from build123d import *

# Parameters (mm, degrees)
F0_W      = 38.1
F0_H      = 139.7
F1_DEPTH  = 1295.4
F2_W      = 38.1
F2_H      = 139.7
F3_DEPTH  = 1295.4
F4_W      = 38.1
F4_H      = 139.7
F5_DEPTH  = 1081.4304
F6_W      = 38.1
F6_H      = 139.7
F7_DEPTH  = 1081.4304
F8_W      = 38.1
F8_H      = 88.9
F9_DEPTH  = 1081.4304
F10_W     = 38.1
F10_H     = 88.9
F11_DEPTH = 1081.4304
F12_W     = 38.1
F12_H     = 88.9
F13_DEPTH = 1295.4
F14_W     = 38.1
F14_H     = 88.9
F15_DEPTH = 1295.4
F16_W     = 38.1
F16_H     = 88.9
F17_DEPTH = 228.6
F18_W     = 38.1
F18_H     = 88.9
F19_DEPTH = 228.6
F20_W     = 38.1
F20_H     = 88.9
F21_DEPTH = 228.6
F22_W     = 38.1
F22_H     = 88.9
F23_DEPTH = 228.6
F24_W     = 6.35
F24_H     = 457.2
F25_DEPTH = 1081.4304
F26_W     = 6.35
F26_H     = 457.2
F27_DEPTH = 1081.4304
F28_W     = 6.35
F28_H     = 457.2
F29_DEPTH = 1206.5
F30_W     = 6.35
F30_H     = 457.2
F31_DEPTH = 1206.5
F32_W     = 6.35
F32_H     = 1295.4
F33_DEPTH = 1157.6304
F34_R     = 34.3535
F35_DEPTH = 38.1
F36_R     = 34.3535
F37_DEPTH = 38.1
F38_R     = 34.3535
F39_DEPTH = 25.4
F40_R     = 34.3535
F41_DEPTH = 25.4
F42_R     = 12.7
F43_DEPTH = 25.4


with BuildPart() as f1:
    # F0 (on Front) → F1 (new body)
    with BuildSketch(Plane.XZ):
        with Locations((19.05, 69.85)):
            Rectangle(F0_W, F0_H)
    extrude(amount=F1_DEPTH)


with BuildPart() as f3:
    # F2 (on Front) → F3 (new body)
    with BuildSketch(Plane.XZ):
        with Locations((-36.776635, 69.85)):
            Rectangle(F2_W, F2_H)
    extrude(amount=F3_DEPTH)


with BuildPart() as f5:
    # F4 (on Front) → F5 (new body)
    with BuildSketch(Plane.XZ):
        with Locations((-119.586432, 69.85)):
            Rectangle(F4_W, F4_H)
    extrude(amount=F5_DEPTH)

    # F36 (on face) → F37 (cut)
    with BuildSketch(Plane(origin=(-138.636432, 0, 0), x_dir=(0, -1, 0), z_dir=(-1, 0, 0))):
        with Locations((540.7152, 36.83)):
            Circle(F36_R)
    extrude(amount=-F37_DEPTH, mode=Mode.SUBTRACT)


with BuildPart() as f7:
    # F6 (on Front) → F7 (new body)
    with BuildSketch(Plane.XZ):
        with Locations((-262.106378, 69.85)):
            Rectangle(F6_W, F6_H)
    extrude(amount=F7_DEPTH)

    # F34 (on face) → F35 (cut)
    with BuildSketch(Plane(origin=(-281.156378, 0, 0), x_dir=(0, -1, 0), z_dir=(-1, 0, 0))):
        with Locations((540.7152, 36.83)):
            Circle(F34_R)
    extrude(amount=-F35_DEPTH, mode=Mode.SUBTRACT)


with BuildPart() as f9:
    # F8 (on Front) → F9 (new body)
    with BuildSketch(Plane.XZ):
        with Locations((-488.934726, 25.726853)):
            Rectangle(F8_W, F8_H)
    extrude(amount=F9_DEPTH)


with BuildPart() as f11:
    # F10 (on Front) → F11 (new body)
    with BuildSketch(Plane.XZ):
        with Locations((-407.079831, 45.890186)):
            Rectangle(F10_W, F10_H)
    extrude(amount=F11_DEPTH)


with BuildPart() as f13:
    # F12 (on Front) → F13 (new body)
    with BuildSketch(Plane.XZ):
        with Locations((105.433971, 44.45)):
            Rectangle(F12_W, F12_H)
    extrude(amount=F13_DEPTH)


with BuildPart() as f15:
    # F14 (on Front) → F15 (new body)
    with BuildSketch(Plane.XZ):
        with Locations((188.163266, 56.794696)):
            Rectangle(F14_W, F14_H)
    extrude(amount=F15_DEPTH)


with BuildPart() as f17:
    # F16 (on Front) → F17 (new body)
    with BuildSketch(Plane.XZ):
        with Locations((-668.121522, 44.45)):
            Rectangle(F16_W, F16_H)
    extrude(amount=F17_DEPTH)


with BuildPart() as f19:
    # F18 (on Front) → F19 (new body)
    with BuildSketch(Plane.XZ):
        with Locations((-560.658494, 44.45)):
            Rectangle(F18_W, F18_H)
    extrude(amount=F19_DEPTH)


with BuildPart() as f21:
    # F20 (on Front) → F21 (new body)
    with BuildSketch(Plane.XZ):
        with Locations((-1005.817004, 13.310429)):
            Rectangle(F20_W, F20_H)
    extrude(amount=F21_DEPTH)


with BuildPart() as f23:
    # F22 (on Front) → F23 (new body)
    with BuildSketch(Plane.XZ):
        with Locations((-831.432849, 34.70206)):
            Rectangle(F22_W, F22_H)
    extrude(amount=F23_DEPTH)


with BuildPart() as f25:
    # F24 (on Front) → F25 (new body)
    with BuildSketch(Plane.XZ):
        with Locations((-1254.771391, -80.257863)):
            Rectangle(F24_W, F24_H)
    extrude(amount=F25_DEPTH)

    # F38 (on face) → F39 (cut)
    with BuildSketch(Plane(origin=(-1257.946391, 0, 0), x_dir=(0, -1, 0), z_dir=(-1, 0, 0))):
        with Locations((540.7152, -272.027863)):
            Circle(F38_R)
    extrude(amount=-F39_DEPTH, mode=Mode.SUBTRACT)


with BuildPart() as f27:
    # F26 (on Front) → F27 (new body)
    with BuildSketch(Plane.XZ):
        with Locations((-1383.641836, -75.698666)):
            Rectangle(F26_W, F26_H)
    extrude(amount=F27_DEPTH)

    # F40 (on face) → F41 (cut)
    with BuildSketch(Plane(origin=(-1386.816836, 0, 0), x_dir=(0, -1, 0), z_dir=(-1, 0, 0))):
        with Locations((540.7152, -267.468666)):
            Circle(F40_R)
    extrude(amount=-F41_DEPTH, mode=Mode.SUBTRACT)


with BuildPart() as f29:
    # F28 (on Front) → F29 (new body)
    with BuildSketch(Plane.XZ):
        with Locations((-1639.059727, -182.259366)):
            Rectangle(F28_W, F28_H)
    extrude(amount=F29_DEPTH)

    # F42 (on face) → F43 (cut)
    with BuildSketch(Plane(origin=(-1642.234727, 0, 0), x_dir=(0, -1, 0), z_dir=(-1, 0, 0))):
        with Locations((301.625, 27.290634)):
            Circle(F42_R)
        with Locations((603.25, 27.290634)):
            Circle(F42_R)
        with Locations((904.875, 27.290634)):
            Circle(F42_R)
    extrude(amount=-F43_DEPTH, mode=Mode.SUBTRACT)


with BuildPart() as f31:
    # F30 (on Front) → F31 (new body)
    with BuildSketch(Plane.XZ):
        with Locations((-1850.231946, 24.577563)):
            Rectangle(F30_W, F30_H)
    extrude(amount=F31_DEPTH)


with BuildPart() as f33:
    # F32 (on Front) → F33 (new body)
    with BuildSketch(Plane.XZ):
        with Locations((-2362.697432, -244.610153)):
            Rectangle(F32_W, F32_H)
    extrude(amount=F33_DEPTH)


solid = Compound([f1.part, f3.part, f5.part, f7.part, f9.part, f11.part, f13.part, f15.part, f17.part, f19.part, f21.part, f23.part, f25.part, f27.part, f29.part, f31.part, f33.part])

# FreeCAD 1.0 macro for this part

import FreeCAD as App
import Part
import Sketcher
Q = App.Units.Quantity


def add_polygon(sketch, points):
    """Adds a closed chain of lines whose ends are joined by coincident constraints."""
    first, n = sketch.GeometryCount, len(points)
    for a, b in zip(points, points[1:] + points[:1]):
        sketch.addGeometry(Part.LineSegment(App.Vector(*a, 0), App.Vector(*b, 0)), False)
    for i in range(n):
        sketch.addConstraint(Sketcher.Constraint("Coincident", first + i, 2, first + (i + 1) % n, 1))

doc = App.newDocument("Part")
body = doc.addObject("PartDesign::Body", "Body")

sketch1 = doc.addObject("Sketcher::SketchObject", "Sketch")
body.addObject(sketch1)
sketch1.AttachmentSupport = (doc.XZ_Plane, [""])
sketch1.MapMode = "FlatFace"
add_polygon(sketch1, [(0, 140), (0, 0), (38, 0), (38, 140)])
sketch1.addConstraint([
    Sketcher.Constraint("Vertical", 0),
    Sketcher.Constraint("Horizontal", 1),
    Sketcher.Constraint("Vertical", 2),
    Sketcher.Constraint("Horizontal", 3),
    Sketcher.Constraint("Coincident", 0, 2, -1, 1),
    Sketcher.Constraint("DistanceX", 1, 1, 1, 2, Q("1.5 in")),
    Sketcher.Constraint("DistanceY", 0, 2, 0, 1, Q("5.5 in")),
])
pad1 = doc.addObject("PartDesign::Pad", "Pad")
body.addObject(pad1)
pad1.Profile = sketch1
pad1.Length = Q("51 in")
body2 = doc.addObject("PartDesign::Body", "Body001")

sketch2 = doc.addObject("Sketcher::SketchObject", "Sketch001")
body2.addObject(sketch2)
sketch2.AttachmentSupport = (doc.getObject("XZ_Plane001"), [""])
sketch2.MapMode = "FlatFace"
add_polygon(sketch2, [(-56, 140), (-56, 0), (-18, 0), (-18, 140)])
sketch2.addConstraint([
    Sketcher.Constraint("Vertical", 0),
    Sketcher.Constraint("Horizontal", 1),
    Sketcher.Constraint("Vertical", 2),
    Sketcher.Constraint("Horizontal", 3),
    Sketcher.Constraint("PointOnObject", 0, 2, -1),
    Sketcher.Constraint("DistanceX", 1, 1, 1, 2, Q("1.5 in")),
    Sketcher.Constraint("DistanceY", 0, 2, 0, 1, Q("5.5 in")),
    Sketcher.Constraint("DistanceX", 0, 2, -1, 1, Q("55.826635 mm")),
])
pad2 = doc.addObject("PartDesign::Pad", "Pad001")
body2.addObject(pad2)
pad2.Profile = sketch2
pad2.Length = Q("51 in")
body3 = doc.addObject("PartDesign::Body", "Body002")

sketch3 = doc.addObject("Sketcher::SketchObject", "Sketch002")
body3.addObject(sketch3)
sketch3.AttachmentSupport = (doc.getObject("XZ_Plane002"), [""])
sketch3.MapMode = "FlatFace"
add_polygon(sketch3, [(-139, 140), (-139, 0), (-101, 0), (-101, 140)])
sketch3.addConstraint([
    Sketcher.Constraint("Vertical", 0),
    Sketcher.Constraint("Horizontal", 1),
    Sketcher.Constraint("Vertical", 2),
    Sketcher.Constraint("Horizontal", 3),
    Sketcher.Constraint("PointOnObject", 0, 2, -1),
    Sketcher.Constraint("DistanceX", 1, 1, 1, 2, Q("1.5 in")),
    Sketcher.Constraint("DistanceY", 0, 2, 0, 1, Q("5.5 in")),
    Sketcher.Constraint("DistanceX", 0, 2, -1, 1, Q("138.636432 mm")),
])
pad3 = doc.addObject("PartDesign::Pad", "Pad002")
body3.addObject(pad3)
pad3.Profile = sketch3
pad3.Length = Q("42.576 in")

sketch4 = doc.addObject("Sketcher::SketchObject", "Sketch003")
body3.addObject(sketch4)
sketch4.AttachmentSupport = (doc.getObject("YZ_Plane002"), [""])
sketch4.MapMode = "FlatFace"
sketch4.AttachmentOffset = App.Placement(App.Vector(0, 0, -138.636432), App.Rotation())
sketch4.addGeometry(Part.Circle(App.Vector(-541, 37, 0), App.Vector(0, 0, 1), 34), False)
sketch4.addConstraint([
    Sketcher.Constraint("Diameter", 0, Q("2.705 in")),
    Sketcher.Constraint("DistanceY", -1, 1, 0, 3, Q("1.45 in")),
    Sketcher.Constraint("DistanceX", 0, 3, -1, 1, Q("21.288 in")),
])
pocket1 = doc.addObject("PartDesign::Pocket", "Pocket")
body3.addObject(pocket1)
pocket1.Profile = sketch4
pocket1.Length = Q("1.5 in")
pocket1.Reversed = True
body4 = doc.addObject("PartDesign::Body", "Body003")

sketch5 = doc.addObject("Sketcher::SketchObject", "Sketch004")
body4.addObject(sketch5)
sketch5.AttachmentSupport = (doc.getObject("XZ_Plane003"), [""])
sketch5.MapMode = "FlatFace"
add_polygon(sketch5, [(-281, 140), (-281, 0), (-243, 0), (-243, 140)])
sketch5.addConstraint([
    Sketcher.Constraint("Vertical", 0),
    Sketcher.Constraint("Horizontal", 1),
    Sketcher.Constraint("Vertical", 2),
    Sketcher.Constraint("Horizontal", 3),
    Sketcher.Constraint("PointOnObject", 0, 2, -1),
    Sketcher.Constraint("DistanceX", 1, 1, 1, 2, Q("1.5 in")),
    Sketcher.Constraint("DistanceY", 0, 2, 0, 1, Q("5.5 in")),
    Sketcher.Constraint("DistanceX", 0, 2, -1, 1, Q("281.156378 mm")),
])
pad4 = doc.addObject("PartDesign::Pad", "Pad003")
body4.addObject(pad4)
pad4.Profile = sketch5
pad4.Length = Q("42.576 in")

sketch6 = doc.addObject("Sketcher::SketchObject", "Sketch005")
body4.addObject(sketch6)
sketch6.AttachmentSupport = (doc.getObject("YZ_Plane003"), [""])
sketch6.MapMode = "FlatFace"
sketch6.AttachmentOffset = App.Placement(App.Vector(0, 0, -281.156378), App.Rotation())
sketch6.addGeometry(Part.Circle(App.Vector(-541, 37, 0), App.Vector(0, 0, 1), 34), False)
sketch6.addConstraint([
    Sketcher.Constraint("Diameter", 0, Q("2.705 in")),
    Sketcher.Constraint("DistanceY", -1, 1, 0, 3, Q("1.45 in")),
    Sketcher.Constraint("DistanceX", 0, 3, -1, 1, Q("21.288 in")),
])
pocket2 = doc.addObject("PartDesign::Pocket", "Pocket001")
body4.addObject(pocket2)
pocket2.Profile = sketch6
pocket2.Length = Q("1.5 in")
pocket2.Reversed = True
body5 = doc.addObject("PartDesign::Body", "Body004")

sketch7 = doc.addObject("Sketcher::SketchObject", "Sketch006")
body5.addObject(sketch7)
sketch7.AttachmentSupport = (doc.getObject("XZ_Plane004"), [""])
sketch7.MapMode = "FlatFace"
add_polygon(sketch7, [(-508, 70), (-508, -19), (-470, -19), (-470, 70)])
sketch7.addConstraint([
    Sketcher.Constraint("Vertical", 0),
    Sketcher.Constraint("Horizontal", 1),
    Sketcher.Constraint("Vertical", 2),
    Sketcher.Constraint("Horizontal", 3),
    Sketcher.Constraint("DistanceX", 1, 1, 1, 2, Q("1.5 in")),
    Sketcher.Constraint("DistanceY", 0, 2, 0, 1, Q("3.5 in")),
    Sketcher.Constraint("DistanceX", 0, 2, -1, 1, Q("507.984726 mm")),
    Sketcher.Constraint("DistanceY", 0, 2, -1, 1, Q("18.723147 mm")),
])
pad5 = doc.addObject("PartDesign::Pad", "Pad004")
body5.addObject(pad5)
pad5.Profile = sketch7
pad5.Length = Q("42.576 in")
body6 = doc.addObject("PartDesign::Body", "Body005")

sketch8 = doc.addObject("Sketcher::SketchObject", "Sketch007")
body6.addObject(sketch8)
sketch8.AttachmentSupport = (doc.getObject("XZ_Plane005"), [""])
sketch8.MapMode = "FlatFace"
add_polygon(sketch8, [(-426, 90), (-426, 1), (-388, 1), (-388, 90)])
sketch8.addConstraint([
    Sketcher.Constraint("Vertical", 0),
    Sketcher.Constraint("Horizontal", 1),
    Sketcher.Constraint("Vertical", 2),
    Sketcher.Constraint("Horizontal", 3),
    Sketcher.Constraint("DistanceX", 1, 1, 1, 2, Q("1.5 in")),
    Sketcher.Constraint("DistanceY", 0, 2, 0, 1, Q("3.5 in")),
    Sketcher.Constraint("DistanceX", 0, 2, -1, 1, Q("426.129831 mm")),
    Sketcher.Constraint("DistanceY", -1, 1, 0, 2, Q("1.440186 mm")),
])
pad6 = doc.addObject("PartDesign::Pad", "Pad005")
body6.addObject(pad6)
pad6.Profile = sketch8
pad6.Length = Q("42.576 in")
body7 = doc.addObject("PartDesign::Body", "Body006")

sketch9 = doc.addObject("Sketcher::SketchObject", "Sketch008")
body7.addObject(sketch9)
sketch9.AttachmentSupport = (doc.getObject("XZ_Plane006"), [""])
sketch9.MapMode = "FlatFace"
add_polygon(sketch9, [(86, 89), (86, 0), (124, 0), (124, 89)])
sketch9.addConstraint([
    Sketcher.Constraint("Vertical", 0),
    Sketcher.Constraint("Horizontal", 1),
    Sketcher.Constraint("Vertical", 2),
    Sketcher.Constraint("Horizontal", 3),
    Sketcher.Constraint("PointOnObject", 0, 2, -1),
    Sketcher.Constraint("DistanceX", 1, 1, 1, 2, Q("1.5 in")),
    Sketcher.Constraint("DistanceY", 0, 2, 0, 1, Q("3.5 in")),
    Sketcher.Constraint("DistanceX", -1, 1, 0, 2, Q("86.383971 mm")),
])
pad7 = doc.addObject("PartDesign::Pad", "Pad006")
body7.addObject(pad7)
pad7.Profile = sketch9
pad7.Length = Q("51 in")
body8 = doc.addObject("PartDesign::Body", "Body007")

sketch10 = doc.addObject("Sketcher::SketchObject", "Sketch009")
body8.addObject(sketch10)
sketch10.AttachmentSupport = (doc.getObject("XZ_Plane007"), [""])
sketch10.MapMode = "FlatFace"
add_polygon(sketch10, [(169, 101), (169, 12), (207, 12), (207, 101)])
sketch10.addConstraint([
    Sketcher.Constraint("Vertical", 0),
    Sketcher.Constraint("Horizontal", 1),
    Sketcher.Constraint("Vertical", 2),
    Sketcher.Constraint("Horizontal", 3),
    Sketcher.Constraint("DistanceX", 1, 1, 1, 2, Q("1.5 in")),
    Sketcher.Constraint("DistanceY", 0, 2, 0, 1, Q("3.5 in")),
    Sketcher.Constraint("DistanceX", -1, 1, 0, 2, Q("169.113266 mm")),
    Sketcher.Constraint("DistanceY", -1, 1, 0, 2, Q("12.344696 mm")),
])
pad8 = doc.addObject("PartDesign::Pad", "Pad007")
body8.addObject(pad8)
pad8.Profile = sketch10
pad8.Length = Q("51 in")
body9 = doc.addObject("PartDesign::Body", "Body008")

sketch11 = doc.addObject("Sketcher::SketchObject", "Sketch010")
body9.addObject(sketch11)
sketch11.AttachmentSupport = (doc.getObject("XZ_Plane008"), [""])
sketch11.MapMode = "FlatFace"
add_polygon(sketch11, [(-687, 89), (-687, 0), (-649, 0), (-649, 89)])
sketch11.addConstraint([
    Sketcher.Constraint("Vertical", 0),
    Sketcher.Constraint("Horizontal", 1),
    Sketcher.Constraint("Vertical", 2),
    Sketcher.Constraint("Horizontal", 3),
    Sketcher.Constraint("PointOnObject", 0, 2, -1),
    Sketcher.Constraint("DistanceX", 1, 1, 1, 2, Q("1.5 in")),
    Sketcher.Constraint("DistanceY", 0, 2, 0, 1, Q("3.5 in")),
    Sketcher.Constraint("DistanceX", 0, 2, -1, 1, Q("687.171522 mm")),
])
pad9 = doc.addObject("PartDesign::Pad", "Pad008")
body9.addObject(pad9)
pad9.Profile = sketch11
pad9.Length = Q("9 in")
body10 = doc.addObject("PartDesign::Body", "Body009")

sketch12 = doc.addObject("Sketcher::SketchObject", "Sketch011")
body10.addObject(sketch12)
sketch12.AttachmentSupport = (doc.getObject("XZ_Plane009"), [""])
sketch12.MapMode = "FlatFace"
add_polygon(sketch12, [(-580, 89), (-580, 0), (-542, 0), (-542, 89)])
sketch12.addConstraint([
    Sketcher.Constraint("Vertical", 0),
    Sketcher.Constraint("Horizontal", 1),
    Sketcher.Constraint("Vertical", 2),
    Sketcher.Constraint("Horizontal", 3),
    Sketcher.Constraint("PointOnObject", 0, 2, -1),
    Sketcher.Constraint("DistanceX", 1, 1, 1, 2, Q("1.5 in")),
    Sketcher.Constraint("DistanceY", 0, 2, 0, 1, Q("3.5 in")),
    Sketcher.Constraint("DistanceX", 0, 2, -1, 1, Q("579.708494 mm")),
])
pad10 = doc.addObject("PartDesign::Pad", "Pad009")
body10.addObject(pad10)
pad10.Profile = sketch12
pad10.Length = Q("9 in")
body11 = doc.addObject("PartDesign::Body", "Body010")

sketch13 = doc.addObject("Sketcher::SketchObject", "Sketch012")
body11.addObject(sketch13)
sketch13.AttachmentSupport = (doc.getObject("XZ_Plane010"), [""])
sketch13.MapMode = "FlatFace"
add_polygon(sketch13, [(-1025, 58), (-1025, -31), (-987, -31), (-987, 58)])
sketch13.addConstraint([
    Sketcher.Constraint("Vertical", 0),
    Sketcher.Constraint("Horizontal", 1),
    Sketcher.Constraint("Vertical", 2),
    Sketcher.Constraint("Horizontal", 3),
    Sketcher.Constraint("DistanceX", 1, 1, 1, 2, Q("1.5 in")),
    Sketcher.Constraint("DistanceY", 0, 2, 0, 1, Q("3.5 in")),
    Sketcher.Constraint("DistanceY", 0, 2, -1, 1, Q("31.139571 mm")),
    Sketcher.Constraint("DistanceX", 0, 2, -1, 1, Q("1024.867004 mm")),
])
pad11 = doc.addObject("PartDesign::Pad", "Pad010")
body11.addObject(pad11)
pad11.Profile = sketch13
pad11.Length = Q("9 in")
body12 = doc.addObject("PartDesign::Body", "Body011")

sketch14 = doc.addObject("Sketcher::SketchObject", "Sketch013")
body12.addObject(sketch14)
sketch14.AttachmentSupport = (doc.getObject("XZ_Plane011"), [""])
sketch14.MapMode = "FlatFace"
add_polygon(sketch14, [(-850, 79), (-850, -10), (-812, -10), (-812, 79)])
sketch14.addConstraint([
    Sketcher.Constraint("Vertical", 0),
    Sketcher.Constraint("Horizontal", 1),
    Sketcher.Constraint("Vertical", 2),
    Sketcher.Constraint("Horizontal", 3),
    Sketcher.Constraint("DistanceX", 1, 1, 1, 2, Q("1.5 in")),
    Sketcher.Constraint("DistanceY", 0, 2, 0, 1, Q("3.5 in")),
    Sketcher.Constraint("DistanceX", 0, 2, -1, 1, Q("850.482849 mm")),
    Sketcher.Constraint("DistanceY", 0, 2, -1, 1, Q("9.74794 mm")),
])
pad12 = doc.addObject("PartDesign::Pad", "Pad011")
body12.addObject(pad12)
pad12.Profile = sketch14
pad12.Length = Q("9 in")
body13 = doc.addObject("PartDesign::Body", "Body012")

sketch15 = doc.addObject("Sketcher::SketchObject", "Sketch014")
body13.addObject(sketch15)
sketch15.AttachmentSupport = (doc.getObject("XZ_Plane012"), [""])
sketch15.MapMode = "FlatFace"
add_polygon(sketch15, [(-1258, 148), (-1258, -309), (-1252, -309), (-1252, 148)])
sketch15.addConstraint([
    Sketcher.Constraint("Vertical", 0),
    Sketcher.Constraint("Horizontal", 1),
    Sketcher.Constraint("Vertical", 2),
    Sketcher.Constraint("Horizontal", 3),
    Sketcher.Constraint("DistanceY", 0, 2, 0, 1, Q("18 in")),
    Sketcher.Constraint("DistanceX", 1, 1, 1, 2, Q("0.25 in")),
    Sketcher.Constraint("DistanceX", 0, 2, -1, 1, Q("1257.946391 mm")),
    Sketcher.Constraint("DistanceY", 0, 2, -1, 1, Q("308.857863 mm")),
])
pad13 = doc.addObject("PartDesign::Pad", "Pad012")
body13.addObject(pad13)
pad13.Profile = sketch15
pad13.Length = Q("42.576 in")

sketch16 = doc.addObject("Sketcher::SketchObject", "Sketch015")
body13.addObject(sketch16)
sketch16.AttachmentSupport = (doc.getObject("YZ_Plane012"), [""])
sketch16.MapMode = "FlatFace"
sketch16.AttachmentOffset = App.Placement(App.Vector(0, 0, -1257.946391), App.Rotation())
sketch16.addGeometry(Part.Circle(App.Vector(-541, -272, 0), App.Vector(0, 0, 1), 34), False)
sketch16.addConstraint([
    Sketcher.Constraint("Diameter", 0, Q("2.705 in")),
    Sketcher.Constraint("DistanceX", 0, 3, -1, 1, Q("21.288 in")),
    Sketcher.Constraint("DistanceY", 0, 3, -1, 1, Q("272.027863 mm")),
])
pocket3 = doc.addObject("PartDesign::Pocket", "Pocket002")
body13.addObject(pocket3)
pocket3.Profile = sketch16
pocket3.Length = Q("1 in")
pocket3.Reversed = True
body14 = doc.addObject("PartDesign::Body", "Body013")

sketch17 = doc.addObject("Sketcher::SketchObject", "Sketch016")
body14.addObject(sketch17)
sketch17.AttachmentSupport = (doc.getObject("XZ_Plane013"), [""])
sketch17.MapMode = "FlatFace"
add_polygon(sketch17, [(-1387, 153), (-1387, -304), (-1380, -304), (-1380, 153)])
sketch17.addConstraint([
    Sketcher.Constraint("Vertical", 0),
    Sketcher.Constraint("Horizontal", 1),
    Sketcher.Constraint("Vertical", 2),
    Sketcher.Constraint("Horizontal", 3),
    Sketcher.Constraint("DistanceY", 0, 2, 0, 1, Q("18 in")),
    Sketcher.Constraint("DistanceX", 1, 1, 1, 2, Q("0.25 in")),
    Sketcher.Constraint("DistanceX", 0, 2, -1, 1, Q("1386.816836 mm")),
    Sketcher.Constraint("DistanceY", 0, 2, -1, 1, Q("304.298666 mm")),
])
pad14 = doc.addObject("PartDesign::Pad", "Pad013")
body14.addObject(pad14)
pad14.Profile = sketch17
pad14.Length = Q("42.576 in")

sketch18 = doc.addObject("Sketcher::SketchObject", "Sketch017")
body14.addObject(sketch18)
sketch18.AttachmentSupport = (doc.getObject("YZ_Plane013"), [""])
sketch18.MapMode = "FlatFace"
sketch18.AttachmentOffset = App.Placement(App.Vector(0, 0, -1386.816836), App.Rotation())
sketch18.addGeometry(Part.Circle(App.Vector(-541, -267, 0), App.Vector(0, 0, 1), 34), False)
sketch18.addConstraint([
    Sketcher.Constraint("Diameter", 0, Q("2.705 in")),
    Sketcher.Constraint("DistanceX", 0, 3, -1, 1, Q("21.288 in")),
    Sketcher.Constraint("DistanceY", 0, 3, -1, 1, Q("267.468666 mm")),
])
pocket4 = doc.addObject("PartDesign::Pocket", "Pocket003")
body14.addObject(pocket4)
pocket4.Profile = sketch18
pocket4.Length = Q("1 in")
pocket4.Reversed = True
body15 = doc.addObject("PartDesign::Body", "Body014")

sketch19 = doc.addObject("Sketcher::SketchObject", "Sketch018")
body15.addObject(sketch19)
sketch19.AttachmentSupport = (doc.getObject("XZ_Plane014"), [""])
sketch19.MapMode = "FlatFace"
add_polygon(sketch19, [(-1642, 46), (-1642, -411), (-1636, -411), (-1636, 46)])
sketch19.addConstraint([
    Sketcher.Constraint("Vertical", 0),
    Sketcher.Constraint("Horizontal", 1),
    Sketcher.Constraint("Vertical", 2),
    Sketcher.Constraint("Horizontal", 3),
    Sketcher.Constraint("DistanceY", 0, 2, 0, 1, Q("18 in")),
    Sketcher.Constraint("DistanceX", 1, 1, 1, 2, Q("0.25 in")),
    Sketcher.Constraint("DistanceX", 0, 2, -1, 1, Q("1642.234727 mm")),
    Sketcher.Constraint("DistanceY", 0, 2, -1, 1, Q("410.859366 mm")),
])
pad15 = doc.addObject("PartDesign::Pad", "Pad014")
body15.addObject(pad15)
pad15.Profile = sketch19
pad15.Length = Q("47.5 in")

sketch20 = doc.addObject("Sketcher::SketchObject", "Sketch019")
body15.addObject(sketch20)
sketch20.AttachmentSupport = (doc.getObject("YZ_Plane014"), [""])
sketch20.MapMode = "FlatFace"
sketch20.AttachmentOffset = App.Placement(App.Vector(0, 0, -1642.234727), App.Rotation())
sketch20.addGeometry([
    Part.Circle(App.Vector(-302, 27, 0), App.Vector(0, 0, 1), 13),
    Part.Circle(App.Vector(-603, 27, 0), App.Vector(0, 0, 1), 13),
    Part.Circle(App.Vector(-905, 27, 0), App.Vector(0, 0, 1), 13),
], False)
sketch20.addConstraint([
    Sketcher.Constraint("Equal", 0, 1),
    Sketcher.Constraint("Equal", 1, 2),
    Sketcher.Constraint("Horizontal", 0, 3, 1, 3),
    Sketcher.Constraint("Horizontal", 1, 3, 2, 3),
    Sketcher.Constraint("Diameter", 0, Q("1 in")),
    Sketcher.Constraint("DistanceX", 1, 3, -1, 1, Q("23.75 in")),
    Sketcher.Constraint("DistanceX", 2, 3, 0, 3, Q("23.75 in")),
    Sketcher.Constraint("DistanceX", 0, 3, -1, 1, Q("11.875 in")),
    Sketcher.Constraint("DistanceY", -1, 1, 0, 3, Q("27.290634 mm")),
])
pocket5 = doc.addObject("PartDesign::Pocket", "Pocket004")
body15.addObject(pocket5)
pocket5.Profile = sketch20
pocket5.Length = Q("1 in")
pocket5.Reversed = True
body16 = doc.addObject("PartDesign::Body", "Body015")

sketch21 = doc.addObject("Sketcher::SketchObject", "Sketch020")
body16.addObject(sketch21)
sketch21.AttachmentSupport = (doc.getObject("XZ_Plane015"), [""])
sketch21.MapMode = "FlatFace"
add_polygon(sketch21, [(-1853, 253), (-1853, -204), (-1847, -204), (-1847, 253)])
sketch21.addConstraint([
    Sketcher.Constraint("Vertical", 0),
    Sketcher.Constraint("Horizontal", 1),
    Sketcher.Constraint("Vertical", 2),
    Sketcher.Constraint("Horizontal", 3),
    Sketcher.Constraint("DistanceY", 0, 2, 0, 1, Q("18 in")),
    Sketcher.Constraint("DistanceX", 1, 1, 1, 2, Q("0.25 in")),
    Sketcher.Constraint("DistanceX", 0, 2, -1, 1, Q("1853.406946 mm")),
    Sketcher.Constraint("DistanceY", 0, 2, -1, 1, Q("204.022437 mm")),
])
pad16 = doc.addObject("PartDesign::Pad", "Pad015")
body16.addObject(pad16)
pad16.Profile = sketch21
pad16.Length = Q("47.5 in")
body17 = doc.addObject("PartDesign::Body", "Body016")

sketch22 = doc.addObject("Sketcher::SketchObject", "Sketch021")
body17.addObject(sketch22)
sketch22.AttachmentSupport = (doc.getObject("XZ_Plane016"), [""])
sketch22.MapMode = "FlatFace"
add_polygon(sketch22, [(-2366, 403), (-2366, -892), (-2360, -892), (-2360, 403)])
sketch22.addConstraint([
    Sketcher.Constraint("Vertical", 0),
    Sketcher.Constraint("Horizontal", 1),
    Sketcher.Constraint("Vertical", 2),
    Sketcher.Constraint("Horizontal", 3),
    Sketcher.Constraint("DistanceY", 0, 2, 0, 1, Q("51 in")),
    Sketcher.Constraint("DistanceX", 1, 1, 1, 2, Q("0.25 in")),
    Sketcher.Constraint("DistanceX", 0, 2, -1, 1, Q("2365.872432 mm")),
    Sketcher.Constraint("DistanceY", 0, 2, -1, 1, Q("892.310153 mm")),
])
pad17 = doc.addObject("PartDesign::Pad", "Pad016")
body17.addObject(pad17)
pad17.Profile = sketch22
pad17.Length = Q("45.576 in")

doc.recompute()
